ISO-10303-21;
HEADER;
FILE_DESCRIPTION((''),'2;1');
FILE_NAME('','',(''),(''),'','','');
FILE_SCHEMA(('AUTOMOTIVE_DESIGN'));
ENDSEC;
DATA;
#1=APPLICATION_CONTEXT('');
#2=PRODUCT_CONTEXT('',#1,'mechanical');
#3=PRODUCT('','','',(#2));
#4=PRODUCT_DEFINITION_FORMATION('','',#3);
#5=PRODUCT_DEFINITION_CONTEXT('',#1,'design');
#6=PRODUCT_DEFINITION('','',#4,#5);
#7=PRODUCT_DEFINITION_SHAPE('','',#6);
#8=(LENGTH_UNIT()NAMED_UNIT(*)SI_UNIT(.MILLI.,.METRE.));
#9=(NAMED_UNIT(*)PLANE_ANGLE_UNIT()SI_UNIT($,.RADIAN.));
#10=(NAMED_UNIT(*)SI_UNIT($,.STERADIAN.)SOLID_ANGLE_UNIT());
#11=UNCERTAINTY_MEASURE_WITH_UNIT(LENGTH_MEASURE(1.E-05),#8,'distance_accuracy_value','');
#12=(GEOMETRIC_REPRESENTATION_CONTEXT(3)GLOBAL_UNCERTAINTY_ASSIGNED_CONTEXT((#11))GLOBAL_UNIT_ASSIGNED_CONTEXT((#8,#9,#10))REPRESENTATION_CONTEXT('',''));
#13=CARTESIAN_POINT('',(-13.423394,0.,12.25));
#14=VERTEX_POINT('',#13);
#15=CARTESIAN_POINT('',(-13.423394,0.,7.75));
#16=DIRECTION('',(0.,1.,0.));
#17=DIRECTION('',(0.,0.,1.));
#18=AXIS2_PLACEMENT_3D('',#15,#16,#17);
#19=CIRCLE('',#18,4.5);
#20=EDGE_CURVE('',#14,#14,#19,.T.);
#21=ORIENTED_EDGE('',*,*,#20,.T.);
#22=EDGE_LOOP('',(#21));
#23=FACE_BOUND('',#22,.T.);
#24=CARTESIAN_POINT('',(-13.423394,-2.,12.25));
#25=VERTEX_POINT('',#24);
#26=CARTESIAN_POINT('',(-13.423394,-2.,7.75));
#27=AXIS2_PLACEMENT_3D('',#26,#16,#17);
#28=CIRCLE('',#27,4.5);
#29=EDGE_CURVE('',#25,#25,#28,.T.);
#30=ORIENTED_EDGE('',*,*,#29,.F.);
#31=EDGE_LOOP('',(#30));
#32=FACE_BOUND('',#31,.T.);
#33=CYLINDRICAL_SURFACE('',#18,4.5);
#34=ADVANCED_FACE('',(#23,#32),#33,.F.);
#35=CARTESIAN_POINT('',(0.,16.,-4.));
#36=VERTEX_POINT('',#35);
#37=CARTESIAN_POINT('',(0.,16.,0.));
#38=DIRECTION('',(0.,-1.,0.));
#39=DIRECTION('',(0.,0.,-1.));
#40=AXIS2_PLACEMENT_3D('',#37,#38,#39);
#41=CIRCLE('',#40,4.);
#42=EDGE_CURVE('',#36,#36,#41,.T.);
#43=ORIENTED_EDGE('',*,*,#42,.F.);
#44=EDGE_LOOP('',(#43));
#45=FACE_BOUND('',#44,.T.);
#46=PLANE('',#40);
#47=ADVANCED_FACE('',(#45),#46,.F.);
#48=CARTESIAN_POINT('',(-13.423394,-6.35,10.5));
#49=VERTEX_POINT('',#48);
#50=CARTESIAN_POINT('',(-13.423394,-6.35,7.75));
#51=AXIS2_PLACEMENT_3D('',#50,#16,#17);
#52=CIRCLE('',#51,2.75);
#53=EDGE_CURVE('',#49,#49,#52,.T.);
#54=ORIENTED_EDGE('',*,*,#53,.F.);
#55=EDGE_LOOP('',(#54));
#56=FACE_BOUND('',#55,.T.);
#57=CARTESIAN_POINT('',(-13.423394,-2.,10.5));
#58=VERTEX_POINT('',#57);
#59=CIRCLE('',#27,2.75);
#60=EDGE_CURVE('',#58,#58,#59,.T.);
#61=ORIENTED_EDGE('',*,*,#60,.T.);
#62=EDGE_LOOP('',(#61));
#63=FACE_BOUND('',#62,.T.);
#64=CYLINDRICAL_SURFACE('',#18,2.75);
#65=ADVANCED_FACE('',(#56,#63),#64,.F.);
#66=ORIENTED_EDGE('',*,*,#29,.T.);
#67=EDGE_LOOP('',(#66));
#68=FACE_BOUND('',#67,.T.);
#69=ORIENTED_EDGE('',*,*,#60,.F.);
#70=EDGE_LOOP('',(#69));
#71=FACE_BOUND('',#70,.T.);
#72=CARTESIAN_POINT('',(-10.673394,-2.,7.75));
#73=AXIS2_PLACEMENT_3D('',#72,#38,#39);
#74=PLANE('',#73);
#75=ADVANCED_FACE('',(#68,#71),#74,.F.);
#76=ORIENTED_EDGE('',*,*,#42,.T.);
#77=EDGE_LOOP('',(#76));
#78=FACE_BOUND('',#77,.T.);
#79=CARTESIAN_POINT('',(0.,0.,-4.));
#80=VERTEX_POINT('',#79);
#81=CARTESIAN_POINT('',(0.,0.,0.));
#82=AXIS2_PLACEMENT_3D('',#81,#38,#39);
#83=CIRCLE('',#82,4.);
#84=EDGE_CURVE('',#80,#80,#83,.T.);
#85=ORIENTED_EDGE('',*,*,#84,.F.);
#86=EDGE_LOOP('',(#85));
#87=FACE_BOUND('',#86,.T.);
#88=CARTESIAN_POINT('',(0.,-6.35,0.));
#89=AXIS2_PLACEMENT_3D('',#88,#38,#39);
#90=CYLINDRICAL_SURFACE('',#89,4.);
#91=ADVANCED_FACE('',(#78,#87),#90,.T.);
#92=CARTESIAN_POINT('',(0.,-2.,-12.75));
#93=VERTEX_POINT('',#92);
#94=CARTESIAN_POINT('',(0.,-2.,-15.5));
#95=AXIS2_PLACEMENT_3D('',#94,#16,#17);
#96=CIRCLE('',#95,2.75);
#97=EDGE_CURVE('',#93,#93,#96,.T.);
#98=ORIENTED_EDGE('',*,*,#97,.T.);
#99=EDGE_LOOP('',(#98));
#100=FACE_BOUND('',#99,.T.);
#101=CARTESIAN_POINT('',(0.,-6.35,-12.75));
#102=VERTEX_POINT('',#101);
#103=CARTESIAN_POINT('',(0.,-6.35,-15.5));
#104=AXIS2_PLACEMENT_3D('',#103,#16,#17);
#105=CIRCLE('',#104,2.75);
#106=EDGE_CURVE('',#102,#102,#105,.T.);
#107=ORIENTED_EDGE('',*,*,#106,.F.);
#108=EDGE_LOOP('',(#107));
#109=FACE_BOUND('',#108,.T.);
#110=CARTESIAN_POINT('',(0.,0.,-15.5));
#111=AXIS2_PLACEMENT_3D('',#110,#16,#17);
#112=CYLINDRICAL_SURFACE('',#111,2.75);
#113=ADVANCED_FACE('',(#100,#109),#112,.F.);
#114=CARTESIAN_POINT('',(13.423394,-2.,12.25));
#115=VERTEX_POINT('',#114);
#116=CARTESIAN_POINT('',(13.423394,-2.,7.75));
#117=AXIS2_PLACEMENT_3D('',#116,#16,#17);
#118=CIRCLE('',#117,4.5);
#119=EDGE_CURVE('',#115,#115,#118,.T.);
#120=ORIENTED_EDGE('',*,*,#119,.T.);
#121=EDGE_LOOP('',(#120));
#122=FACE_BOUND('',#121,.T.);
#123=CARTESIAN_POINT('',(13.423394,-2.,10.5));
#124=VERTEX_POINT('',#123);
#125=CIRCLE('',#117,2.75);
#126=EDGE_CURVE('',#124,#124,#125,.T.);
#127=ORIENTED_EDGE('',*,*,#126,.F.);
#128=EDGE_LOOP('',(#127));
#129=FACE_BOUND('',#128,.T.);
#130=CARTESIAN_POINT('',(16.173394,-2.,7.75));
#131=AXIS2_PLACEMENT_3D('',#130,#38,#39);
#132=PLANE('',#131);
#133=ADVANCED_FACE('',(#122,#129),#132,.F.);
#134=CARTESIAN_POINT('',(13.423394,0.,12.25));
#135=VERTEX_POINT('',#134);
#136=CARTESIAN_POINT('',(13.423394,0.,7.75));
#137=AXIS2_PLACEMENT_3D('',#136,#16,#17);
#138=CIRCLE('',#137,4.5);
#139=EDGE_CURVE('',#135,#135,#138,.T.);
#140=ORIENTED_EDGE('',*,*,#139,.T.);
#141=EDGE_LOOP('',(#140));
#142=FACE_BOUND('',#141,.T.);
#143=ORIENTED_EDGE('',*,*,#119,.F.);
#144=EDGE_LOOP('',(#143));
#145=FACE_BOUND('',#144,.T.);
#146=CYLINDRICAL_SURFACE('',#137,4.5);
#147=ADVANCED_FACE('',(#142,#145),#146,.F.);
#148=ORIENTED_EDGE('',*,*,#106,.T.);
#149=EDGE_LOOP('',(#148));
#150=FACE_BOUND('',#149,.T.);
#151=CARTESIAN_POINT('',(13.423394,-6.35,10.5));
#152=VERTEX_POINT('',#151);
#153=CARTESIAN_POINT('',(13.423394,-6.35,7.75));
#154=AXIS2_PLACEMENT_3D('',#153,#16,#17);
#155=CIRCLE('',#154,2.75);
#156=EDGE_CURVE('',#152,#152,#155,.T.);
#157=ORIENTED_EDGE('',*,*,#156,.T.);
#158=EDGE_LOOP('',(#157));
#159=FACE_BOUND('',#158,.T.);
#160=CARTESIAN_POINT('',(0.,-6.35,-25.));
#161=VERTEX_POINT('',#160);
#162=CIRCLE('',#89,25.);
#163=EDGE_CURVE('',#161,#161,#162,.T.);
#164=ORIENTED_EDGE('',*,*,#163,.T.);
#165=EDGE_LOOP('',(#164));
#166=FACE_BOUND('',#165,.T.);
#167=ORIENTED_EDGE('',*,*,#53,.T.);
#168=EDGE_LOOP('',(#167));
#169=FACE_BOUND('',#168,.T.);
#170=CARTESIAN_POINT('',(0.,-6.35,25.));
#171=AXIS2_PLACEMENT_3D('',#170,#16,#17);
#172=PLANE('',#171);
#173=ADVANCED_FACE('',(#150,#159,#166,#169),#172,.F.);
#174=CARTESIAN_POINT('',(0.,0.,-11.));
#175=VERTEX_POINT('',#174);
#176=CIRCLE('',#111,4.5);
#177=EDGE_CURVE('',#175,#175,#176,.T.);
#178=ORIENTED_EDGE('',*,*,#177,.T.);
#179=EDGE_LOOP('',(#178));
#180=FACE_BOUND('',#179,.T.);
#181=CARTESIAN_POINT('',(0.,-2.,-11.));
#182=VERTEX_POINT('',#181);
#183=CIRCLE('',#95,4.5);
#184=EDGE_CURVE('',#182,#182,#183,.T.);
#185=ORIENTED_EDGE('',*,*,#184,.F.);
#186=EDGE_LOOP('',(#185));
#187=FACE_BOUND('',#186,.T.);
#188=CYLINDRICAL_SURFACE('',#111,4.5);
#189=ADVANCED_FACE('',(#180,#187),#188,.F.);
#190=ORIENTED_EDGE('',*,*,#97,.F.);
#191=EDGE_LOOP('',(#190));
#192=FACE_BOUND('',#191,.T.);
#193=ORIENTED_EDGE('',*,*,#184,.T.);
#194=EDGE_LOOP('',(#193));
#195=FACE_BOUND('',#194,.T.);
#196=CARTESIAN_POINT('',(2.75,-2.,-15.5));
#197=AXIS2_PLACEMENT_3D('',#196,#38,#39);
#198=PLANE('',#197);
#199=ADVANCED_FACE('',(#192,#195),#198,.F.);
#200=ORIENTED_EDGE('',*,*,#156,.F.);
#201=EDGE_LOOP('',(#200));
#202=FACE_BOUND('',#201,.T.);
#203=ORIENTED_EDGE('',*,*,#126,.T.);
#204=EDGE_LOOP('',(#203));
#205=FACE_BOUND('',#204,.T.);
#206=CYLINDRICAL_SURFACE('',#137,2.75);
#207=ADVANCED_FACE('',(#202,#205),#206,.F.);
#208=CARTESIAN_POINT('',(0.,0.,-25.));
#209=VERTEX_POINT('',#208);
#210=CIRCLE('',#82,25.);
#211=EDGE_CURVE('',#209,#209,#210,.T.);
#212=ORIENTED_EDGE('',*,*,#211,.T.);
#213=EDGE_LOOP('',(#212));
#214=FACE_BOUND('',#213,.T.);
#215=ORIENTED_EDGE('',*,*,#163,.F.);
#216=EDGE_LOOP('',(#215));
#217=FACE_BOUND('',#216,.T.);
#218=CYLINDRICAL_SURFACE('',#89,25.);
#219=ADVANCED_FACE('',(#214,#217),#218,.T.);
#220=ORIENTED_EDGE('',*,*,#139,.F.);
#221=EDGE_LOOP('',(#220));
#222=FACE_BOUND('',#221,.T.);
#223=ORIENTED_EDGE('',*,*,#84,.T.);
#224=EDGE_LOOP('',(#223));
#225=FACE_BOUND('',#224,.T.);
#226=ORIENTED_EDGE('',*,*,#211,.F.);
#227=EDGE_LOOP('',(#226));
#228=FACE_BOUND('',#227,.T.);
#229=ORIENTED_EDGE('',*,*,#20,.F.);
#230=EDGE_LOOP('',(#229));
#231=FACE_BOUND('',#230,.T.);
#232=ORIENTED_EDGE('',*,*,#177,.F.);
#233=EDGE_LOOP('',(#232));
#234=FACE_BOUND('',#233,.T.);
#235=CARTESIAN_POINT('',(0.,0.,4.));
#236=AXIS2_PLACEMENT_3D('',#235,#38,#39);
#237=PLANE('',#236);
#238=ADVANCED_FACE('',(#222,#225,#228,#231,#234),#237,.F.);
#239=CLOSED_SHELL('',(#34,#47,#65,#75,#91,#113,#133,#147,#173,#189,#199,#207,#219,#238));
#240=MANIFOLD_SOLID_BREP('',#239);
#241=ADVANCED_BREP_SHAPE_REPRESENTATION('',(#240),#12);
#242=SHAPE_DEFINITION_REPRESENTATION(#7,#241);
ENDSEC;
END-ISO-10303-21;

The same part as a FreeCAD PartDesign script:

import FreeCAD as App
import Part
import Sketcher
Q = App.Units.Quantity

doc = App.newDocument("Part")
body = doc.addObject("PartDesign::Body", "Body")

# Sketch on YZ plane
sketch1 = body.newObject("Sketcher::SketchObject", "Sketch")
sketch1.AttachmentSupport = (doc.getObject("YZ_Plane"), [""])
sketch1.MapMode = "FlatFace"
sketch1.addGeometry([
    Part.LineSegment(App.Vector(-6.35, 0, 0), App.Vector(16, 0, 0)),  # 0
    Part.LineSegment(App.Vector(16, 0, 0), App.Vector(16, 4, 0)),  # 1
    Part.LineSegment(App.Vector(16, 4, 0), App.Vector(0, 4, 0)),  # 2
    Part.LineSegment(App.Vector(0, 4, 0), App.Vector(0, 25, 0)),  # 3
    Part.LineSegment(App.Vector(0, 25, 0), App.Vector(-6.35, 25, 0)),  # 4
    Part.LineSegment(App.Vector(-6.35, 25, 0), App.Vector(-6.35, 0, 0)),  # 5
], False)
sketch1.addConstraint([
    Sketcher.Constraint("Coincident", 0, 2, 1, 1),
    Sketcher.Constraint("Coincident", 1, 2, 2, 1),
    Sketcher.Constraint("Coincident", 2, 2, 3, 1),
    Sketcher.Constraint("Coincident", 3, 2, 4, 1),
    Sketcher.Constraint("Coincident", 4, 2, 5, 1),
    Sketcher.Constraint("Coincident", 5, 2, 0, 1),
    Sketcher.Constraint("Horizontal", 0),
    Sketcher.Constraint("Vertical", 1),
    Sketcher.Constraint("Horizontal", 2),
    Sketcher.Constraint("Vertical", 3),
    Sketcher.Constraint("Horizontal", 4),
    Sketcher.Constraint("Vertical", 5),
    Sketcher.Constraint("PointOnObject", 0, 2, -1),
    Sketcher.Constraint("PointOnObject", 2, 2, -2),
    Sketcher.Constraint("DistanceX", 2, 2, 2, 1, Q("16 mm")),
    Sketcher.Constraint("DistanceY", 1, 1, 1, 2, Q("4 mm")),
    Sketcher.Constraint("DistanceY", 3, 1, 3, 2, Q("21 mm")),
    Sketcher.Constraint("DistanceX", 0, 1, 0, 2, Q("22.35 mm")),
])
revolution = body.newObject("PartDesign::Revolution", "Revolution")
revolution.Profile = sketch1
revolution.ReferenceAxis = (sketch1, ["H_Axis"])
revolution.Angle = 360

# Sketch on XZ plane
sketch2 = body.newObject("Sketcher::SketchObject", "Sketch001")
sketch2.AttachmentSupport = (doc.getObject("XZ_Plane"), [""])
sketch2.MapMode = "FlatFace"
sketch2.addGeometry([
    Part.Circle(App.Vector(0, -15.5, 0), App.Vector(0, 0, 1), 2.75),
    Part.Circle(App.Vector(-13.423394, 7.75, 0), App.Vector(0, 0, 1), 2.75),
    Part.Circle(App.Vector(13.423394, 7.75, 0), App.Vector(0, 0, 1), 2.75),
], False)
sketch2.addConstraint([
    Sketcher.Constraint("Equal", 0, 1),
    Sketcher.Constraint("Equal", 1, 2),
    Sketcher.Constraint("Symmetric", 1, 3, 2, 3, -2),
    Sketcher.Constraint("PointOnObject", 0, 3, -2),
    Sketcher.Constraint("Diameter", 0, Q("5.5 mm")),
    Sketcher.Constraint("DistanceY", 0, 3, -1, 1, Q("15.5 mm")),
    Sketcher.Constraint("DistanceY", -1, 1, 1, 3, Q("7.75 mm")),
    Sketcher.Constraint("DistanceX", 1, 3, -1, 1, Q("13.423394 mm")),
])
doc.recompute()
hole = body.newObject("PartDesign::Hole", "Hole")
hole.Profile = sketch2
hole.ThreadType = "None"
hole.Diameter = 5.5
hole.DepthType = "ThroughAll"
hole.HoleCutType = "Counterbore"
hole.HoleCutDiameter = 9
hole.HoleCutDepth = 2
hole.Reversed = True

doc.recompute()
